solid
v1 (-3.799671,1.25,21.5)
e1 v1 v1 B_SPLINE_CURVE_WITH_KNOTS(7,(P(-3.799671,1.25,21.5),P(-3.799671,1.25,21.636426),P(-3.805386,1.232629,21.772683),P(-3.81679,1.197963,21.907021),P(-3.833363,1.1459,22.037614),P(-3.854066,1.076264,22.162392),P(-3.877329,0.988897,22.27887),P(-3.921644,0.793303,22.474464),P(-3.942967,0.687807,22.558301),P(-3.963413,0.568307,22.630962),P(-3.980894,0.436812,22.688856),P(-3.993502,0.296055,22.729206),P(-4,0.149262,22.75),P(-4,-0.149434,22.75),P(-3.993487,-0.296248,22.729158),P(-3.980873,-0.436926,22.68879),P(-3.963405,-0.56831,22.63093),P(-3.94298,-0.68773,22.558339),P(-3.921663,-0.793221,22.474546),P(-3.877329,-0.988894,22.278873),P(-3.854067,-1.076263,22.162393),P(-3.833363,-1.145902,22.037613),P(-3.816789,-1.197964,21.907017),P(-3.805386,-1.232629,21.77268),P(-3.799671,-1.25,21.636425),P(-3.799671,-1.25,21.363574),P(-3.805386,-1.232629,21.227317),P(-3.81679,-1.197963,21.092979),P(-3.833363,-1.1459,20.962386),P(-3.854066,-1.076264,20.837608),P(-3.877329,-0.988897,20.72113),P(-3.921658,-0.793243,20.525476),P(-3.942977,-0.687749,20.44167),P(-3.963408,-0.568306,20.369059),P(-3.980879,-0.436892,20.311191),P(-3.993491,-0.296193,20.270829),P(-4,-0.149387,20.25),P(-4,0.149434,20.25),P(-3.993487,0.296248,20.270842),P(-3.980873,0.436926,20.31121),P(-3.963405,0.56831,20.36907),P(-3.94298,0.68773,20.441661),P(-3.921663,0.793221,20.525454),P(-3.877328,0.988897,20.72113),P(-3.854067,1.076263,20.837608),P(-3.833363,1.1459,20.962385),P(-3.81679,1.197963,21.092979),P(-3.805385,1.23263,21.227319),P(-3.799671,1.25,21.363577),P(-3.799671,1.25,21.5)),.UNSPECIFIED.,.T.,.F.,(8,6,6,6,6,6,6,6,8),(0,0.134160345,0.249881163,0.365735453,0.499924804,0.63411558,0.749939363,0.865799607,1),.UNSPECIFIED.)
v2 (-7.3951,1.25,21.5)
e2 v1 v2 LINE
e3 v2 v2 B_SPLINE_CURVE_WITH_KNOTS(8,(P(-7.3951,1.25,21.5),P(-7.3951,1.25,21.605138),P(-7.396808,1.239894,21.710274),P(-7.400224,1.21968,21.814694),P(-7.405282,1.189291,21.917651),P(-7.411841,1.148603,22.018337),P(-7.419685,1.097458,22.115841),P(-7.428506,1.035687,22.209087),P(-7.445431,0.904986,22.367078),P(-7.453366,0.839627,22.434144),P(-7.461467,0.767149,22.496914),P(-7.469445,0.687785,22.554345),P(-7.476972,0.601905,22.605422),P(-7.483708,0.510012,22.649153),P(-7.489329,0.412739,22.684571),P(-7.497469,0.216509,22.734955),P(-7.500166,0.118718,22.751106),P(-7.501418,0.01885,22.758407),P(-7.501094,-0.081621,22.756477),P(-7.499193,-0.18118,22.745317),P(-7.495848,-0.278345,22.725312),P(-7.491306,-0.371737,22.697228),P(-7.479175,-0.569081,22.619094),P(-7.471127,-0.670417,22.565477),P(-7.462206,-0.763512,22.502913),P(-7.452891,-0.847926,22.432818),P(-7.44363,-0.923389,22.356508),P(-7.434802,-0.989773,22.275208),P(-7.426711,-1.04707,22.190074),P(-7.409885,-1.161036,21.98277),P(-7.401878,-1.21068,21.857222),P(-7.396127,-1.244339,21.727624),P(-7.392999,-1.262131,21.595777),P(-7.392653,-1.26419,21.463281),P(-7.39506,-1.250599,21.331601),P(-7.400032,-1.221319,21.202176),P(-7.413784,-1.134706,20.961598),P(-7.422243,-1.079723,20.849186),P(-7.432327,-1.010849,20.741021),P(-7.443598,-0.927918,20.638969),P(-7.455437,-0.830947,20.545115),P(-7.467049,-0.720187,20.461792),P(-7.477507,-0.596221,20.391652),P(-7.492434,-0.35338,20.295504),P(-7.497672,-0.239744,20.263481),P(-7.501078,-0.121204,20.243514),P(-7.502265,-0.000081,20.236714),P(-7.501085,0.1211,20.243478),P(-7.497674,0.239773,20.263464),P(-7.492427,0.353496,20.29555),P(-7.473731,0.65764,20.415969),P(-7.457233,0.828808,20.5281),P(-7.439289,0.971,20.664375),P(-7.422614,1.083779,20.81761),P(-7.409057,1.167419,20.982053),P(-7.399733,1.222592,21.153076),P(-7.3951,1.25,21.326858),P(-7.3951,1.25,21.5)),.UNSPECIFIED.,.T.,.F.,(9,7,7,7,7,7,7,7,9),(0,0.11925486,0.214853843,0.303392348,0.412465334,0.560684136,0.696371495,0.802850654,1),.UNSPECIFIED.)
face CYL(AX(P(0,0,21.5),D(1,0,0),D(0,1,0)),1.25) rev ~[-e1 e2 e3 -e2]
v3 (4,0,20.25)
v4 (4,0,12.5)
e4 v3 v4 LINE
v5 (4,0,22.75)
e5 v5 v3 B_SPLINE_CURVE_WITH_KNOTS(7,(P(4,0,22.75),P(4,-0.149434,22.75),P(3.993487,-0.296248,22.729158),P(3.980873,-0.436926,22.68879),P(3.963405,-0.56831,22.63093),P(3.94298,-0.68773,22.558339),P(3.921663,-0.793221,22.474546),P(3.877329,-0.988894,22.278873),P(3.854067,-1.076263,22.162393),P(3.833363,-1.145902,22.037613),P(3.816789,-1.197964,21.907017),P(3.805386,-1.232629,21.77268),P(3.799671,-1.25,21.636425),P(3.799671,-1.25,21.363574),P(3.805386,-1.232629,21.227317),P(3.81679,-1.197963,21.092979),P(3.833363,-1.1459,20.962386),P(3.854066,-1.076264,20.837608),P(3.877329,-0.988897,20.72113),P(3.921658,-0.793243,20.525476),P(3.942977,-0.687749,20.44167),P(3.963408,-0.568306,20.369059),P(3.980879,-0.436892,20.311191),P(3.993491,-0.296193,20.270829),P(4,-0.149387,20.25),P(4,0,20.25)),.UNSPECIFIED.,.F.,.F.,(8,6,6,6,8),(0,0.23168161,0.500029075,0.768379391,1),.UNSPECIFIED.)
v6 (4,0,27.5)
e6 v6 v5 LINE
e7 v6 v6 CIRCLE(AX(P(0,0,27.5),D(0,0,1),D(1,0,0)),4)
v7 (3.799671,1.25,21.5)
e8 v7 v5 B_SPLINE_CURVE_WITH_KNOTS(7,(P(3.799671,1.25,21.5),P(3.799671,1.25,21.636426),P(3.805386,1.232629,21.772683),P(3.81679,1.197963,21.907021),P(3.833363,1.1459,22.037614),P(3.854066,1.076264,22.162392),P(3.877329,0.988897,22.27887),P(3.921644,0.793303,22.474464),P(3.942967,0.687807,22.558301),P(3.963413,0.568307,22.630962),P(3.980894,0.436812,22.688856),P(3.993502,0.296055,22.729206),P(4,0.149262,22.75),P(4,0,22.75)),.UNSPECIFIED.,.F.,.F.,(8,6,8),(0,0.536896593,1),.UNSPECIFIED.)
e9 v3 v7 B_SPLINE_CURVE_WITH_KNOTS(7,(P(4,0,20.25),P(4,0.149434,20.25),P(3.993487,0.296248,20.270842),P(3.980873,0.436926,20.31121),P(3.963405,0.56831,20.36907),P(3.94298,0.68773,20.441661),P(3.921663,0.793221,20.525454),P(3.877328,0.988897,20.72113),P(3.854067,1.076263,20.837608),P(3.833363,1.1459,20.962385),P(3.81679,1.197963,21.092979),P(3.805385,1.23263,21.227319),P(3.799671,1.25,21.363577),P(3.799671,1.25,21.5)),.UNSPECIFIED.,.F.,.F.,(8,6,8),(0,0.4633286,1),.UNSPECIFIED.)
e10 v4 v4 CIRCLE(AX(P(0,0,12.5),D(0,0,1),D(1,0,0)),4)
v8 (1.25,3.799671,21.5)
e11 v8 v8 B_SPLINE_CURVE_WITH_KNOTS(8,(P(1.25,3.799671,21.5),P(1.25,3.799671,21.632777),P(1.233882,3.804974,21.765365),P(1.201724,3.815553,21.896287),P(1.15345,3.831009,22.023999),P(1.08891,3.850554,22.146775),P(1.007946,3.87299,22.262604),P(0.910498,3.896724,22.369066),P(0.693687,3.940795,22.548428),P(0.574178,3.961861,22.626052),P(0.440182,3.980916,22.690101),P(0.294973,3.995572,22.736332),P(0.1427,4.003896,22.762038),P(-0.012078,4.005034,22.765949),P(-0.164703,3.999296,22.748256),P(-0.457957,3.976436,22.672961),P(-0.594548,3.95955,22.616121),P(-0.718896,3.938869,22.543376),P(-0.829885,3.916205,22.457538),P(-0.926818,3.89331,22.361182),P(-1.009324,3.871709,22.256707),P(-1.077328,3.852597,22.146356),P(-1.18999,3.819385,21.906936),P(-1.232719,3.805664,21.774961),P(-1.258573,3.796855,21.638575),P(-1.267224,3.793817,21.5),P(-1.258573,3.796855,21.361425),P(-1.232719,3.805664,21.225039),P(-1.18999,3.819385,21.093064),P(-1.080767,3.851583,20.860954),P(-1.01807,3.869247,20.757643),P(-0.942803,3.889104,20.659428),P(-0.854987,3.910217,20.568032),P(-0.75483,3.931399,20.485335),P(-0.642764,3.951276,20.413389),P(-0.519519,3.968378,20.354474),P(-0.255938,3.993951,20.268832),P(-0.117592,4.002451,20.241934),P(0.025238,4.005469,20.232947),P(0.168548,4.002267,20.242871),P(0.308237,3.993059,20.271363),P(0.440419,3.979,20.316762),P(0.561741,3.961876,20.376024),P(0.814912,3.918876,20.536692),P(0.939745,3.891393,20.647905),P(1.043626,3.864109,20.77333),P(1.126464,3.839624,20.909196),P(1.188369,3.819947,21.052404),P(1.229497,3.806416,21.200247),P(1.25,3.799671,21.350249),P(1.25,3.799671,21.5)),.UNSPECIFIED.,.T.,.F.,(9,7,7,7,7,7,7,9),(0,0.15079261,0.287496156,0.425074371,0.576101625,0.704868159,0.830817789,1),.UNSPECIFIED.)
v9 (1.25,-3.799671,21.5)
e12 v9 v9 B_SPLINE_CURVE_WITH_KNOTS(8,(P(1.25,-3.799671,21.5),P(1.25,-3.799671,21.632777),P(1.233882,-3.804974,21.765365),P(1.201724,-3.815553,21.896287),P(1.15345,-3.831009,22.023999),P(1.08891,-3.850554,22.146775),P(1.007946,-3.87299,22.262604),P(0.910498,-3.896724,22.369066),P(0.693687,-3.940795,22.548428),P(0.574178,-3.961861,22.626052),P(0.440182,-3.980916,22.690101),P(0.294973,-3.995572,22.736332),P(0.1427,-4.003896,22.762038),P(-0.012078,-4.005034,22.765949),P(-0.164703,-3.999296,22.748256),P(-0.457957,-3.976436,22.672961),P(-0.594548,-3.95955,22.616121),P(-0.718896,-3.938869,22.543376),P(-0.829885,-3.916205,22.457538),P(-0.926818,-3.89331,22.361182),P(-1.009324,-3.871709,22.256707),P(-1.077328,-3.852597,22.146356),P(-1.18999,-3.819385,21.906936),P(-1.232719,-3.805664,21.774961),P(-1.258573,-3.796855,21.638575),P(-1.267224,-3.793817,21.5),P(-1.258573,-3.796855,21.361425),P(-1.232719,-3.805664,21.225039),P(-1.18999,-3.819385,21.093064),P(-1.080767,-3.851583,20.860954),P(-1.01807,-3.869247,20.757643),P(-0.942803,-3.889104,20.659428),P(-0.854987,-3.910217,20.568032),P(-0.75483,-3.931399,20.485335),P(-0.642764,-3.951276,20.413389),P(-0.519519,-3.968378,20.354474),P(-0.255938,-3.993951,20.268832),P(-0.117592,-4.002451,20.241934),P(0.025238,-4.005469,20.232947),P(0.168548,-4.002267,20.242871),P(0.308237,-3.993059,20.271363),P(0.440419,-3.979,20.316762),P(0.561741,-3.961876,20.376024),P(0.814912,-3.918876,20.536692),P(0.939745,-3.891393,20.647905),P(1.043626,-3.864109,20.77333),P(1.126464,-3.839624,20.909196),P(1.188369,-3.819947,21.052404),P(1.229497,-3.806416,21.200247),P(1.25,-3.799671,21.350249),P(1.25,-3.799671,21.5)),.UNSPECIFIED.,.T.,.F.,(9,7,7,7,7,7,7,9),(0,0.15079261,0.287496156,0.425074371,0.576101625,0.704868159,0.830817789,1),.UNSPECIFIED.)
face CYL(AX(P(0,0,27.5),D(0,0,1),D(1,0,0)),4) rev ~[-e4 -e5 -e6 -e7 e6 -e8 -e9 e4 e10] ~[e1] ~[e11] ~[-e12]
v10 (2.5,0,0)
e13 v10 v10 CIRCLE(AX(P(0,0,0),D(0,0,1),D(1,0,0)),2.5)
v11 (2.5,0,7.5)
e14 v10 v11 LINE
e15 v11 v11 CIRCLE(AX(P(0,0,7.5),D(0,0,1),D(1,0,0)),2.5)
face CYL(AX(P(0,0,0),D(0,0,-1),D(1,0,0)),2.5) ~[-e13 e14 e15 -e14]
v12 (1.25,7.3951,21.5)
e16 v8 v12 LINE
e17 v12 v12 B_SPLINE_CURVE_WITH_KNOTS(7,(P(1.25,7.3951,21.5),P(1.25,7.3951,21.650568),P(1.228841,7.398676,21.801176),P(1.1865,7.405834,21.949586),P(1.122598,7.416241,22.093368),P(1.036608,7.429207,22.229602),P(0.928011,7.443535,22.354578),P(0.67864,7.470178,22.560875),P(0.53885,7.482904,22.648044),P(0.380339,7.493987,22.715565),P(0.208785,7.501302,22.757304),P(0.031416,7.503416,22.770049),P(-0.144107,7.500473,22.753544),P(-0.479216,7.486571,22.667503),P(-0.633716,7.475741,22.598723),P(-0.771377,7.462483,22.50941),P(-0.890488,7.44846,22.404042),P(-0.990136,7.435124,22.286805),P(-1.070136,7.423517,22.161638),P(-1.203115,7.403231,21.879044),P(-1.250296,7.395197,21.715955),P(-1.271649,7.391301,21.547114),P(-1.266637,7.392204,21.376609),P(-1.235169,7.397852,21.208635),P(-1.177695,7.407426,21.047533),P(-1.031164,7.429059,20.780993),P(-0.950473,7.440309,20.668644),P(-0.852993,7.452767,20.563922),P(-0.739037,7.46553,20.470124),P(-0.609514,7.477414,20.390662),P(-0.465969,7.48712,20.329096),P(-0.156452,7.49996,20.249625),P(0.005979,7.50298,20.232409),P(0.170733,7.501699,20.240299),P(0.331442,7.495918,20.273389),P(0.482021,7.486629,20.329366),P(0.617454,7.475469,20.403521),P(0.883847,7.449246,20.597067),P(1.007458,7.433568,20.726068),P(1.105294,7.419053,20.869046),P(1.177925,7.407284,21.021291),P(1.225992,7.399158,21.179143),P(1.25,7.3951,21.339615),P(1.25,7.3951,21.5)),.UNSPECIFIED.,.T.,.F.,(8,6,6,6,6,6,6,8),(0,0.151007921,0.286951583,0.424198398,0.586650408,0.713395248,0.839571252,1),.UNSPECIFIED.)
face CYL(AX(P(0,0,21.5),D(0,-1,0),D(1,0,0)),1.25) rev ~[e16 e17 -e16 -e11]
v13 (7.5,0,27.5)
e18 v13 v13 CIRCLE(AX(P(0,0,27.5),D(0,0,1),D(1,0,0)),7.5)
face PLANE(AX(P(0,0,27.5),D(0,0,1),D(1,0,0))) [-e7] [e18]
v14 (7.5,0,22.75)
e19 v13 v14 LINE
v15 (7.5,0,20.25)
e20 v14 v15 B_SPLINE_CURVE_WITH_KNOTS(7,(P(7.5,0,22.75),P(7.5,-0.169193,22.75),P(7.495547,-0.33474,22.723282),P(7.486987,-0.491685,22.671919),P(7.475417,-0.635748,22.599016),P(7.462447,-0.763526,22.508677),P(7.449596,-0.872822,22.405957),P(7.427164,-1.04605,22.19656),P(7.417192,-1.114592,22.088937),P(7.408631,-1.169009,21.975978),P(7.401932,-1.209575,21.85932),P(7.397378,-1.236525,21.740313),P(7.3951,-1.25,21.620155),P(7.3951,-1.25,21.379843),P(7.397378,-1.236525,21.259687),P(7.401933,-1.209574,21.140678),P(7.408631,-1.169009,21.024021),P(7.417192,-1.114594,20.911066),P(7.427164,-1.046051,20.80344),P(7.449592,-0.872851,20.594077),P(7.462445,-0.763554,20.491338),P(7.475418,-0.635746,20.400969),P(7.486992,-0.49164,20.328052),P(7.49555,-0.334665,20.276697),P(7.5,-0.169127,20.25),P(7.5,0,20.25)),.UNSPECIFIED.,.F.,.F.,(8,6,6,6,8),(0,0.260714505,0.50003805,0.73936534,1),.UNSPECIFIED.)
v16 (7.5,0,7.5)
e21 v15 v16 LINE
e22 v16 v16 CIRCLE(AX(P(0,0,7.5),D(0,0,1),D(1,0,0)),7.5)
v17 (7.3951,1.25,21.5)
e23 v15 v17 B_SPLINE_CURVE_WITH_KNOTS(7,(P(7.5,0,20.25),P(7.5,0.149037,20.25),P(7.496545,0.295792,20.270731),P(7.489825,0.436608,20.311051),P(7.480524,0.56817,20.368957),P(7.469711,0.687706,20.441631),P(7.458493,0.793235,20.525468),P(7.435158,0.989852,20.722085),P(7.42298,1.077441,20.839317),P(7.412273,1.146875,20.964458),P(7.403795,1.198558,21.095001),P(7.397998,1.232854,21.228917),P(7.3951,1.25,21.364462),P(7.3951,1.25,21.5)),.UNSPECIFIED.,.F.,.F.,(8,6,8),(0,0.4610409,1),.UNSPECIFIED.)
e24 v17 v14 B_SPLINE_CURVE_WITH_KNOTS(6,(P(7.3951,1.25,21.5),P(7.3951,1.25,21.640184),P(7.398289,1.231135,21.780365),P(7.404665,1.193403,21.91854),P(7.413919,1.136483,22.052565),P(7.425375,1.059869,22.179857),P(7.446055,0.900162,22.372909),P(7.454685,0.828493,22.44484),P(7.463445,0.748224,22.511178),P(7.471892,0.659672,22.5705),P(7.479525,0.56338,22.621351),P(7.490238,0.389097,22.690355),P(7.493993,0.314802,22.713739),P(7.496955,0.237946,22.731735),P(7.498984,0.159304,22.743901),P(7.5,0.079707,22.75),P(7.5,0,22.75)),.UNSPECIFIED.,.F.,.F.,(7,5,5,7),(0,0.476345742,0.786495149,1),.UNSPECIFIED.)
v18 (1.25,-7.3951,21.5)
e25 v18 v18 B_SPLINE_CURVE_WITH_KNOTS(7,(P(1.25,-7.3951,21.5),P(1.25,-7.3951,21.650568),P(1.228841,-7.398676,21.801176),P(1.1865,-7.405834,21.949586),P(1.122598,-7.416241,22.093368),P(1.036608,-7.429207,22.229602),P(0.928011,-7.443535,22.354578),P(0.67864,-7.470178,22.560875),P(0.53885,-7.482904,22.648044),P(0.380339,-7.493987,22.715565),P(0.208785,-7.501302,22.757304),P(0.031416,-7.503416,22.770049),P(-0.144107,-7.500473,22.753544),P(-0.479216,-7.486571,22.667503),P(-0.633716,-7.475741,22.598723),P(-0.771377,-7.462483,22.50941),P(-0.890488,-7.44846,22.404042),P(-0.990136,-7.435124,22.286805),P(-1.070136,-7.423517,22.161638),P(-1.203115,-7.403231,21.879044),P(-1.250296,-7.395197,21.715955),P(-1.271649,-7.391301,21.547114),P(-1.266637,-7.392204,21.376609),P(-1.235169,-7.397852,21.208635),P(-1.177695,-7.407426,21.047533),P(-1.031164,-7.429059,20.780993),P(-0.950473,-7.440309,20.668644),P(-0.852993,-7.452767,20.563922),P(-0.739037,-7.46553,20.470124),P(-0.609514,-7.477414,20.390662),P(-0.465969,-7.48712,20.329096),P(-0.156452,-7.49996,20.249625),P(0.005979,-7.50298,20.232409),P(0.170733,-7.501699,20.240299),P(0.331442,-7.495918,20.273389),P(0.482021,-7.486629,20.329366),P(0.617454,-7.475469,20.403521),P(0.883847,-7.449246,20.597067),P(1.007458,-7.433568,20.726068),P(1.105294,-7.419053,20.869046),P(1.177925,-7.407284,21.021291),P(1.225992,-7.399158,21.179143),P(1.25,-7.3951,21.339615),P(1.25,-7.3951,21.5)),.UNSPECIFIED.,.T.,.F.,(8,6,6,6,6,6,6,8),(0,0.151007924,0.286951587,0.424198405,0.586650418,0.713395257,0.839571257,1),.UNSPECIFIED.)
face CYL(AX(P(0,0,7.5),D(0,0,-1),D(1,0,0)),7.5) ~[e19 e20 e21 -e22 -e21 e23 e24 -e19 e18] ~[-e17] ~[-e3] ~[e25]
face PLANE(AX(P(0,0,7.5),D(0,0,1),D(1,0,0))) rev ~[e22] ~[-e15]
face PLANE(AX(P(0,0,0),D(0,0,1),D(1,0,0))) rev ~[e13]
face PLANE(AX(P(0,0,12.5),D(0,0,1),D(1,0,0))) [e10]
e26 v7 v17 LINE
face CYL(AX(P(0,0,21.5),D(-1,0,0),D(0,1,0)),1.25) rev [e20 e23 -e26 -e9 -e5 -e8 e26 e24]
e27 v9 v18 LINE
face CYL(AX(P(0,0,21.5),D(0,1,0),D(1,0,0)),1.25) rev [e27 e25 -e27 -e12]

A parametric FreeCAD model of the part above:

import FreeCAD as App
import Part
import Sketcher
Q = App.Units.Quantity

doc = App.newDocument("Part")
body = doc.addObject("PartDesign::Body", "Body")

# Sketch on XY plane
sketch1 = body.newObject("Sketcher::SketchObject", "Sketch")
sketch1.AttachmentSupport = (doc.getObject("XY_Plane"), [""])
sketch1.MapMode = "FlatFace"
sketch1.addGeometry(Part.Circle(App.Vector(0, 0, 0), App.Vector(0, 0, 1), 2.5), False)
sketch1.addConstraint(Sketcher.Constraint("Coincident", 0, 3, -1, 1))
sketch1.addConstraint(Sketcher.Constraint("Diameter", 0, Q("5 mm")))
pad1 = body.newObject("PartDesign::Pad", "Pad")
pad1.Profile = sketch1
pad1.Length = 7.5

# Sketch on XY plane
sketch2 = body.newObject("Sketcher::SketchObject", "Sketch001")
sketch2.AttachmentSupport = (doc.getObject("XY_Plane"), [""])
sketch2.MapMode = "FlatFace"
sketch2.AttachmentOffset = App.Placement(App.Vector(0, 0, 7.5), App.Rotation())
sketch2.addGeometry(Part.Circle(App.Vector(0, 0, 0), App.Vector(0, 0, 1), 8), False)
sketch2.addConstraint(Sketcher.Constraint("Coincident", 0, 3, -1, 1))
sketch2.addConstraint(Sketcher.Constraint("Diameter", 0, Q("15 mm")))
pad2 = body.newObject("PartDesign::Pad", "Pad001")
pad2.Profile = sketch2
pad2.Length = 15

# Sketch on XY plane
sketch3 = body.newObject("Sketcher::SketchObject", "Sketch002")
sketch3.AttachmentSupport = (doc.getObject("XY_Plane"), [""])
sketch3.MapMode = "FlatFace"
sketch3.AttachmentOffset = App.Placement(App.Vector(0, 0, 7.5), App.Rotation())
sketch3.addGeometry(Part.Circle(App.Vector(0, 0, 0), App.Vector(0, 0, 1), 8), False)
sketch3.addConstraint(Sketcher.Constraint("Coincident", 0, 3, -1, 1))
sketch3.addConstraint(Sketcher.Constraint("Diameter", 0, Q("15 mm")))
pad3 = body.newObject("PartDesign::Pad", "Pad002")
pad3.Profile = sketch3
pad3.Length = 20

# Sketch on XY plane
sketch4 = body.newObject("Sketcher::SketchObject", "Sketch003")
sketch4.AttachmentSupport = (doc.getObject("XY_Plane"), [""])
sketch4.MapMode = "FlatFace"
sketch4.AttachmentOffset = App.Placement(App.Vector(0, 0, 27.5), App.Rotation())
sketch4.addGeometry(Part.Circle(App.Vector(0, 0, 0), App.Vector(0, 0, 1), 4), False)
sketch4.addConstraint(Sketcher.Constraint("Coincident", 0, 3, -1, 1))
sketch4.addConstraint(Sketcher.Constraint("Diameter", 0, Q("8 mm")))
pocket1 = body.newObject("PartDesign::Pocket", "Pocket")
pocket1.Profile = sketch4
pocket1.Length = 15

# Sketch on XZ plane
sketch5 = body.newObject("Sketcher::SketchObject", "Sketch004")
sketch5.AttachmentSupport = (doc.getObject("XZ_Plane"), [""])
sketch5.MapMode = "FlatFace"
sketch5.addGeometry(Part.Circle(App.Vector(0, 21.5, 0), App.Vector(0, 0, 1), 1.2), False)
sketch5.addConstraint(Sketcher.Constraint("PointOnObject", 0, 3, -2))
sketch5.addConstraint(Sketcher.Constraint("Diameter", 0, Q("2.5 mm")))
sketch5.addConstraint(Sketcher.Constraint("DistanceY", -1, 1, 0, 3, Q("21.5 mm")))
pocket2 = body.newObject("PartDesign::Pocket", "Pocket001")
pocket2.Profile = sketch5
pocket2.Type = "ThroughAll"
pocket2.Midplane = True

# Sketch on YZ plane
sketch6 = body.newObject("Sketcher::SketchObject", "Sketch005")
sketch6.AttachmentSupport = (doc.getObject("YZ_Plane"), [""])
sketch6.MapMode = "FlatFace"
sketch6.addGeometry(Part.Circle(App.Vector(0, 21.5, 0), App.Vector(0, 0, 1), 1.2), False)
sketch6.addConstraint(Sketcher.Constraint("PointOnObject", 0, 3, -2))
sketch6.addConstraint(Sketcher.Constraint("Diameter", 0, Q("2.5 mm")))
sketch6.addConstraint(Sketcher.Constraint("DistanceY", -1, 1, 0, 3, Q("21.5 mm")))
pocket3 = body.newObject("PartDesign::Pocket", "Pocket002")
pocket3.Profile = sketch6
pocket3.Type = "ThroughAll"
pocket3.Midplane = True

doc.recompute()
